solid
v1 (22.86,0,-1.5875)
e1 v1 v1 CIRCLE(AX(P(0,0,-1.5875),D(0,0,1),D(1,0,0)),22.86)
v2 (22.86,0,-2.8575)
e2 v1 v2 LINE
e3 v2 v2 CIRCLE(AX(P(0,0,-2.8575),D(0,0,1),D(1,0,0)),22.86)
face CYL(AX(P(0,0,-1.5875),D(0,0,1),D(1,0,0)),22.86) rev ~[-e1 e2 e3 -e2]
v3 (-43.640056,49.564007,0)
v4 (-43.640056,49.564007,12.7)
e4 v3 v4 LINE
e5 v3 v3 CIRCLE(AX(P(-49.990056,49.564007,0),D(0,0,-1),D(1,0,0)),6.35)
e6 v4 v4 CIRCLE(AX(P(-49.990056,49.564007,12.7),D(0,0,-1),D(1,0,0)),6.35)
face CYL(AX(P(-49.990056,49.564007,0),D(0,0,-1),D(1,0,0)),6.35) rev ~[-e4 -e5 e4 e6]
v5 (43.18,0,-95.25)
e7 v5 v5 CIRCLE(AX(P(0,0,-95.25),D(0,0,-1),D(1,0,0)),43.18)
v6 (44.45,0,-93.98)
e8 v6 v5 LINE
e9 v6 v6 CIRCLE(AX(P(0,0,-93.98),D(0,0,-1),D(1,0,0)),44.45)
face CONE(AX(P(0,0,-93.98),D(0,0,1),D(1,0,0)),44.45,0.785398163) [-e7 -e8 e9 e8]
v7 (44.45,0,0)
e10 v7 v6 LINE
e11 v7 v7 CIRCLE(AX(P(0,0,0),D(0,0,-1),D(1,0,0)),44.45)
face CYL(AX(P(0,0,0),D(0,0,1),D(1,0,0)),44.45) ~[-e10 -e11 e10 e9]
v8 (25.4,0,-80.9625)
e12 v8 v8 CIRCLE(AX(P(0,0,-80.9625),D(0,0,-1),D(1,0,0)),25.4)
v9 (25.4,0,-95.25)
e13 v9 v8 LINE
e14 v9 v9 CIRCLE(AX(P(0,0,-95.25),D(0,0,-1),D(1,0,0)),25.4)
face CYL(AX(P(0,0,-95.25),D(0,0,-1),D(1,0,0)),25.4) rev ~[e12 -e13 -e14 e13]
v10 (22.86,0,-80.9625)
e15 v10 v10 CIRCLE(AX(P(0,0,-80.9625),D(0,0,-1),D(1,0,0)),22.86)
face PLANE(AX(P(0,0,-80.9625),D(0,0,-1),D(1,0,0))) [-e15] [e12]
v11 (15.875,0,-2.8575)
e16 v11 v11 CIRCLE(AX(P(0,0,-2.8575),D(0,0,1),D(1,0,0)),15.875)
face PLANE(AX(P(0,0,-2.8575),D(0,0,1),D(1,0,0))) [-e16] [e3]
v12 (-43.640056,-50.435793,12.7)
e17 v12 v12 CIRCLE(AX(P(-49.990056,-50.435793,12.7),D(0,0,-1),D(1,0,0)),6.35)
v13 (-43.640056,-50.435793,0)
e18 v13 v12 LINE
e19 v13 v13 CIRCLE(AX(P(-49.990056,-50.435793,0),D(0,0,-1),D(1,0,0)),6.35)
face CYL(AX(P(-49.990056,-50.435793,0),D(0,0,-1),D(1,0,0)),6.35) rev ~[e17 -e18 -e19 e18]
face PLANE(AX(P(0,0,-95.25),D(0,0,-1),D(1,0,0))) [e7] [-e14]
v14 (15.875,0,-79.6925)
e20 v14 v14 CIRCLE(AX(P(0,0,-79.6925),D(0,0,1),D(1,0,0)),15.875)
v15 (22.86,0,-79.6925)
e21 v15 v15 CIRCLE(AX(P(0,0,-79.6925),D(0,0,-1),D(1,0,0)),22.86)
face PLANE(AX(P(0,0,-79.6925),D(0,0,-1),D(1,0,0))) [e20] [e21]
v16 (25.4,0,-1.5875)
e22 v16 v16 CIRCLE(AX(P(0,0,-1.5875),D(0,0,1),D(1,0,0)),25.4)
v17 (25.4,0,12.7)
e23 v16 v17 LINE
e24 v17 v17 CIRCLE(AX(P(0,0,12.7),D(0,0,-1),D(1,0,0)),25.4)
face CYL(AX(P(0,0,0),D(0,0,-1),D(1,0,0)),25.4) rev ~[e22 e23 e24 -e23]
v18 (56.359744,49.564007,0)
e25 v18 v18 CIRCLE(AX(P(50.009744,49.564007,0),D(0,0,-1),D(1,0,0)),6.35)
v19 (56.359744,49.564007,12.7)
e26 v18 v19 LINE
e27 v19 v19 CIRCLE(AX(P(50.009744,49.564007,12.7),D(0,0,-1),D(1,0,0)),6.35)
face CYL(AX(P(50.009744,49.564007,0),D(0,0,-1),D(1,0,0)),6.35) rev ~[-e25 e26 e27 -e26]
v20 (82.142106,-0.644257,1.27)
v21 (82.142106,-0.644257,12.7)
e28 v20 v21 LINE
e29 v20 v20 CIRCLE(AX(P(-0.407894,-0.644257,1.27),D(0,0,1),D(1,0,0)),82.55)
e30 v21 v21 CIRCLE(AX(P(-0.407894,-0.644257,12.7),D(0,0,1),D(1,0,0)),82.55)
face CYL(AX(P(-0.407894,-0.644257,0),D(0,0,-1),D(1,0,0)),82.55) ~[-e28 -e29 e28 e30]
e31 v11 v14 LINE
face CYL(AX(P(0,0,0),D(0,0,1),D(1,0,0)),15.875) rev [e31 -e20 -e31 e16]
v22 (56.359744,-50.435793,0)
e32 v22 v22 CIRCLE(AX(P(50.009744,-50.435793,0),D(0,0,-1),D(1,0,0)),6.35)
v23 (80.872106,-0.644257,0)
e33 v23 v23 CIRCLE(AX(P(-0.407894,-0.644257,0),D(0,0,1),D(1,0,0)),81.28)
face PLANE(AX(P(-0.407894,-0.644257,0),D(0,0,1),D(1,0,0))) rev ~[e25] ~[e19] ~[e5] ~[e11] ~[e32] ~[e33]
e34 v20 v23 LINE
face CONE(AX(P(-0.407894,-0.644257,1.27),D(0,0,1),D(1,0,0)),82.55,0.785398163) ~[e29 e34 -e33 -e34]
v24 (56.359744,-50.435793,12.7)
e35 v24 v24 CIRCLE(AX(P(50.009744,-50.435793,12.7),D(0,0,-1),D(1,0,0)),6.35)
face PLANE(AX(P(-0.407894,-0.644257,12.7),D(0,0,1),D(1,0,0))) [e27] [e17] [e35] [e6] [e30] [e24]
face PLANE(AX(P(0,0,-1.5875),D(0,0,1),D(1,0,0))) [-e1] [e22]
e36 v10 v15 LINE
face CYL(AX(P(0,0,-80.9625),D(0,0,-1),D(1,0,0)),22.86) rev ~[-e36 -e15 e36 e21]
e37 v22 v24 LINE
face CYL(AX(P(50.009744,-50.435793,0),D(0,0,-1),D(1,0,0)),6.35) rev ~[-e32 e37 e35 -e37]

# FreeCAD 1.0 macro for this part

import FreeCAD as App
import Part
import Sketcher
Q = App.Units.Quantity


def edges_at(feature, points):
    """Names of the edges that pass closest to the given points."""
    edges = feature.Shape.Edges
    near = lambda p: min(range(len(edges)), key=lambda i: edges[i].distToShape(Part.Vertex(*p))[0])
    return sorted({f"Edge{near(p) + 1}" for p in points})

doc = App.newDocument("Part")
params = doc.addObject("Spreadsheet::Sheet", "Params")
for row, (alias, value) in enumerate([
    ("sketch1_diameter", "6.5 in"),
    ("pad1_length", "0.5 in"),
    ("sketch2_diameter", "3.5 in"),
    ("pad2_length", "3.75 in"),
    ("sketch3_diameter", "0.5 in"),
    ("pocket1_length", "1 in"),
    ("sketch4_diameter", "1.25 in"),
    ("pocket2_length", "5 in"),
    ("sketch5_diameter", "2 in"),
    ("sketch5_diameter2", "1.25 in"),
    ("pocket3_length", "0.5625 in"),
    ("sketch6_diameter", "1.25 in"),
    ("sketch7_diameter", "2 in"),
    ("pocket5_length", "0.0625 in"),
    ("sketch8_diameter", "2 in"),
    ("sketch8_diameter2", "1.25 in"),
    ("pocket6_length", "0.5625 in"),
    ("sketch9_diameter", "1.8 in"),
    ("pocket7_length", "0.05 in"),
    ("sketch10_diameter", "1.8 in"),
    ("pocket8_length", "0.05 in"),
    ("chamfer_size", "0.05 in"),
    ("chamfer2_size", "0.05 in"),
], start=1):
    params.set(f"A{row}", alias)
    params.set(f"B{row}", "=" + value)
    params.setAlias(f"B{row}", alias)

body = doc.addObject("PartDesign::Body", "Body")
body.AllowCompound = True

# Sketch on XY plane
sketch1 = doc.addObject("Sketcher::SketchObject", "Sketch")
body.addObject(sketch1)
sketch1.AttachmentSupport = (doc.XY_Plane, [""])
sketch1.MapMode = "FlatFace"
sketch1.addGeometry(Part.Circle(App.Vector(0, -1, 0), App.Vector(0, 0, 1), 83), False)
sketch1.addConstraint([
    Sketcher.Constraint("Diameter", 0, Q("6.5 in")),
    Sketcher.Constraint("DistanceX", 0, 3, -1, 1, 0.407894),
    Sketcher.Constraint("DistanceY", 0, 3, -1, 1, 0.644257),
])
sketch1.setExpression("Constraints[0]", "Params.sketch1_diameter")
pad1 = doc.addObject("PartDesign::Pad", "Pad")
body.addObject(pad1)
pad1.Profile = sketch1
pad1.setExpression("Length", "Params.pad1_length")

# Sketch on XY plane
sketch2 = doc.addObject("Sketcher::SketchObject", "Sketch001")
body.addObject(sketch2)
sketch2.AttachmentSupport = (doc.XY_Plane, [""])
sketch2.MapMode = "FlatFace"
sketch2.addGeometry(Part.Circle(App.Vector(0, 0, 0), App.Vector(0, 0, 1), 44), False)
sketch2.addConstraint([
    Sketcher.Constraint("Coincident", 0, 3, -1, 1),
    Sketcher.Constraint("Diameter", 0, Q("3.5 in")),
])
sketch2.setExpression("Constraints[1]", "Params.sketch2_diameter")
pad2 = doc.addObject("PartDesign::Pad", "Pad001")
body.addObject(pad2)
pad2.Profile = sketch2
pad2.setExpression("Length", "Params.pad2_length")
pad2.Reversed = True

# Sketch on XY plane
sketch3 = doc.addObject("Sketcher::SketchObject", "Sketch002")
body.addObject(sketch3)
sketch3.AttachmentSupport = (doc.XY_Plane, [""])
sketch3.MapMode = "FlatFace"
sketch3.addGeometry([
    Part.Circle(App.Vector(-50, -50, 0), App.Vector(0, 0, 1), 6),
    Part.Circle(App.Vector(50, 50, 0), App.Vector(0, 0, 1), 6),
    Part.Circle(App.Vector(50, -50, 0), App.Vector(0, 0, 1), 6),
    Part.Circle(App.Vector(-50, 50, 0), App.Vector(0, 0, 1), 6),
], False)
sketch3.addConstraint([
    Sketcher.Constraint("Equal", 0, 1),
    Sketcher.Constraint("Equal", 1, 2),
    Sketcher.Constraint("Equal", 2, 3),
    Sketcher.Constraint("Horizontal", 0, 3, 2, 3),
    Sketcher.Constraint("Horizontal", 1, 3, 3, 3),
    Sketcher.Constraint("Vertical", 1, 3, 2, 3),
    Sketcher.Constraint("Vertical", 0, 3, 3, 3),
    Sketcher.Constraint("Diameter", 0, Q("0.5 in")),
    Sketcher.Constraint("DistanceX", 0, 3, 1, 3, Q("3.937 in")),
    Sketcher.Constraint("DistanceY", 0, 3, 1, 3, Q("3.937 in")),
    Sketcher.Constraint("DistanceX", 0, 3, -1, 1, 49.990056),
    Sketcher.Constraint("DistanceY", 0, 3, -1, 1, 50.435793),
])
sketch3.setExpression("Constraints[7]", "Params.sketch3_diameter")
pocket1 = doc.addObject("PartDesign::Pocket", "Pocket")
body.addObject(pocket1)
pocket1.Profile = sketch3
pocket1.setExpression("Length", "Params.pocket1_length")
pocket1.Reversed = True

# Sketch on XY plane
sketch4 = doc.addObject("Sketcher::SketchObject", "Sketch003")
body.addObject(sketch4)
sketch4.AttachmentSupport = (doc.XY_Plane, [""])
sketch4.MapMode = "FlatFace"
sketch4.addGeometry(Part.Circle(App.Vector(0, 0, 0), App.Vector(0, 0, 1), 16), False)
sketch4.addConstraint([
    Sketcher.Constraint("Coincident", 0, 3, -1, 1),
    Sketcher.Constraint("Diameter", 0, Q("1.25 in")),
])
sketch4.setExpression("Constraints[1]", "Params.sketch4_diameter")
pocket2 = doc.addObject("PartDesign::Pocket", "Pocket001")
body.addObject(pocket2)
pocket2.Profile = sketch4
pocket2.setExpression("Length", "Params.pocket2_length")

# Sketch on XY plane
sketch5 = doc.addObject("Sketcher::SketchObject", "Sketch004")
body.addObject(sketch5)
sketch5.AttachmentSupport = (doc.XY_Plane, [""])
sketch5.MapMode = "FlatFace"
sketch5.addGeometry([
    Part.Circle(App.Vector(0, 0, 0), App.Vector(0, 0, 1), 25),
    Part.Circle(App.Vector(0, 0, 0), App.Vector(0, 0, 1), 16),
], False)
sketch5.addConstraint([
    Sketcher.Constraint("Coincident", 0, 3, -1, 1),
    Sketcher.Constraint("Coincident", 1, 3, -1, 1),
    Sketcher.Constraint("Diameter", 0, Q("2 in")),
    Sketcher.Constraint("Diameter", 1, Q("1.25 in")),
])
sketch5.setExpression("Constraints[2]", "Params.sketch5_diameter")
sketch5.setExpression("Constraints[3]", "Params.sketch5_diameter2")
pocket3 = doc.addObject("PartDesign::Pocket", "Pocket002")
body.addObject(pocket3)
pocket3.Profile = sketch5
pocket3.setExpression("Length", "Params.pocket3_length")
pocket3.Reversed = True

# Sketch on XY plane
sketch6 = doc.addObject("Sketcher::SketchObject", "Sketch005")
body.addObject(sketch6)
sketch6.AttachmentSupport = (doc.XY_Plane, [""])
sketch6.MapMode = "FlatFace"
sketch6.AttachmentOffset = App.Placement(App.Vector(0, 0, -3.75 * 25.4), App.Rotation())
sketch6.addGeometry(Part.Circle(App.Vector(0, 0, 0), App.Vector(0, 0, 1), 16), False)
sketch6.addConstraint([
    Sketcher.Constraint("Coincident", 0, 3, -1, 1),
    Sketcher.Constraint("Diameter", 0, Q("1.25 in")),
])
sketch6.setExpression("Constraints[1]", "Params.sketch6_diameter")
pocket4 = doc.addObject("PartDesign::Pocket", "Pocket003")
body.addObject(pocket4)
pocket4.Profile = sketch6
pocket4.Type = "ThroughAll"
pocket4.Reversed = True

# Sketch on XY plane
sketch7 = doc.addObject("Sketcher::SketchObject", "Sketch006")
body.addObject(sketch7)
sketch7.AttachmentSupport = (doc.XY_Plane, [""])
sketch7.MapMode = "FlatFace"
sketch7.addGeometry(Part.Circle(App.Vector(0, 0, 0), App.Vector(0, 0, 1), 25), False)
sketch7.addConstraint([
    Sketcher.Constraint("Coincident", 0, 3, -1, 1),
    Sketcher.Constraint("Diameter", 0, Q("2 in")),
])
sketch7.setExpression("Constraints[1]", "Params.sketch7_diameter")
pocket5 = doc.addObject("PartDesign::Pocket", "Pocket004")
body.addObject(pocket5)
pocket5.Profile = sketch7
pocket5.setExpression("Length", "Params.pocket5_length")

# Sketch on XY plane
sketch8 = doc.addObject("Sketcher::SketchObject", "Sketch007")
body.addObject(sketch8)
sketch8.AttachmentSupport = (doc.XY_Plane, [""])
sketch8.MapMode = "FlatFace"
sketch8.AttachmentOffset = App.Placement(App.Vector(0, 0, -3.75 * 25.4), App.Rotation())
sketch8.addGeometry([
    Part.Circle(App.Vector(0, 0, 0), App.Vector(0, 0, 1), 25),
    Part.Circle(App.Vector(0, 0, 0), App.Vector(0, 0, 1), 16),
], False)
sketch8.addConstraint([
    Sketcher.Constraint("Coincident", 0, 3, -1, 1),
    Sketcher.Constraint("Coincident", 1, 3, -1, 1),
    Sketcher.Constraint("Diameter", 0, Q("2 in")),
    Sketcher.Constraint("Diameter", 1, Q("1.25 in")),
])
sketch8.setExpression("Constraints[2]", "Params.sketch8_diameter")
sketch8.setExpression("Constraints[3]", "Params.sketch8_diameter2")
pocket6 = doc.addObject("PartDesign::Pocket", "Pocket005")
body.addObject(pocket6)
pocket6.Profile = sketch8
pocket6.setExpression("Length", "Params.pocket6_length")
pocket6.Reversed = True

# Sketch on XY plane
sketch9 = doc.addObject("Sketcher::SketchObject", "Sketch008")
body.addObject(sketch9)
sketch9.AttachmentSupport = (doc.XY_Plane, [""])
sketch9.MapMode = "FlatFace"
sketch9.AttachmentOffset = App.Placement(App.Vector(0, 0, -3.1875 * 25.4), App.Rotation())
sketch9.addGeometry(Part.Circle(App.Vector(0, 0, 0), App.Vector(0, 0, 1), 23), False)
sketch9.addConstraint([
    Sketcher.Constraint("Coincident", 0, 3, -1, 1),
    Sketcher.Constraint("Diameter", 0, Q("1.8 in")),
])
sketch9.setExpression("Constraints[1]", "Params.sketch9_diameter")
pocket7 = doc.addObject("PartDesign::Pocket", "Pocket006")
body.addObject(pocket7)
pocket7.Profile = sketch9
pocket7.setExpression("Length", "Params.pocket7_length")
pocket7.Reversed = True

# Sketch on XY plane
sketch10 = doc.addObject("Sketcher::SketchObject", "Sketch009")
body.addObject(sketch10)
sketch10.AttachmentSupport = (doc.XY_Plane, [""])
sketch10.MapMode = "FlatFace"
sketch10.AttachmentOffset = App.Placement(App.Vector(0, 0, -0.0625 * 25.4), App.Rotation())
sketch10.addGeometry(Part.Circle(App.Vector(0, 0, 0), App.Vector(0, 0, 1), 23), False)
sketch10.addConstraint([
    Sketcher.Constraint("Coincident", 0, 3, -1, 1),
    Sketcher.Constraint("Diameter", 0, Q("1.8 in")),
])
sketch10.setExpression("Constraints[1]", "Params.sketch10_diameter")
pocket8 = doc.addObject("PartDesign::Pocket", "Pocket007")
body.addObject(pocket8)
pocket8.Profile = sketch10
pocket8.setExpression("Length", "Params.pocket8_length")
doc.recompute()

chamfer = doc.addObject("PartDesign::Chamfer", "Chamfer")
body.addObject(chamfer)
chamfer.Base = (pocket8, edges_at(pocket8, [(-82.958, -0.644, 0)]))
chamfer.setExpression("Size", "Params.chamfer_size")
doc.recompute()

chamfer2 = doc.addObject("PartDesign::Chamfer", "Chamfer001")
body.addObject(chamfer2)
chamfer2.Base = (chamfer, edges_at(chamfer, [(-44.45, 0, -95.25)]))
chamfer2.setExpression("Size", "Params.chamfer2_size")

doc.recompute()
